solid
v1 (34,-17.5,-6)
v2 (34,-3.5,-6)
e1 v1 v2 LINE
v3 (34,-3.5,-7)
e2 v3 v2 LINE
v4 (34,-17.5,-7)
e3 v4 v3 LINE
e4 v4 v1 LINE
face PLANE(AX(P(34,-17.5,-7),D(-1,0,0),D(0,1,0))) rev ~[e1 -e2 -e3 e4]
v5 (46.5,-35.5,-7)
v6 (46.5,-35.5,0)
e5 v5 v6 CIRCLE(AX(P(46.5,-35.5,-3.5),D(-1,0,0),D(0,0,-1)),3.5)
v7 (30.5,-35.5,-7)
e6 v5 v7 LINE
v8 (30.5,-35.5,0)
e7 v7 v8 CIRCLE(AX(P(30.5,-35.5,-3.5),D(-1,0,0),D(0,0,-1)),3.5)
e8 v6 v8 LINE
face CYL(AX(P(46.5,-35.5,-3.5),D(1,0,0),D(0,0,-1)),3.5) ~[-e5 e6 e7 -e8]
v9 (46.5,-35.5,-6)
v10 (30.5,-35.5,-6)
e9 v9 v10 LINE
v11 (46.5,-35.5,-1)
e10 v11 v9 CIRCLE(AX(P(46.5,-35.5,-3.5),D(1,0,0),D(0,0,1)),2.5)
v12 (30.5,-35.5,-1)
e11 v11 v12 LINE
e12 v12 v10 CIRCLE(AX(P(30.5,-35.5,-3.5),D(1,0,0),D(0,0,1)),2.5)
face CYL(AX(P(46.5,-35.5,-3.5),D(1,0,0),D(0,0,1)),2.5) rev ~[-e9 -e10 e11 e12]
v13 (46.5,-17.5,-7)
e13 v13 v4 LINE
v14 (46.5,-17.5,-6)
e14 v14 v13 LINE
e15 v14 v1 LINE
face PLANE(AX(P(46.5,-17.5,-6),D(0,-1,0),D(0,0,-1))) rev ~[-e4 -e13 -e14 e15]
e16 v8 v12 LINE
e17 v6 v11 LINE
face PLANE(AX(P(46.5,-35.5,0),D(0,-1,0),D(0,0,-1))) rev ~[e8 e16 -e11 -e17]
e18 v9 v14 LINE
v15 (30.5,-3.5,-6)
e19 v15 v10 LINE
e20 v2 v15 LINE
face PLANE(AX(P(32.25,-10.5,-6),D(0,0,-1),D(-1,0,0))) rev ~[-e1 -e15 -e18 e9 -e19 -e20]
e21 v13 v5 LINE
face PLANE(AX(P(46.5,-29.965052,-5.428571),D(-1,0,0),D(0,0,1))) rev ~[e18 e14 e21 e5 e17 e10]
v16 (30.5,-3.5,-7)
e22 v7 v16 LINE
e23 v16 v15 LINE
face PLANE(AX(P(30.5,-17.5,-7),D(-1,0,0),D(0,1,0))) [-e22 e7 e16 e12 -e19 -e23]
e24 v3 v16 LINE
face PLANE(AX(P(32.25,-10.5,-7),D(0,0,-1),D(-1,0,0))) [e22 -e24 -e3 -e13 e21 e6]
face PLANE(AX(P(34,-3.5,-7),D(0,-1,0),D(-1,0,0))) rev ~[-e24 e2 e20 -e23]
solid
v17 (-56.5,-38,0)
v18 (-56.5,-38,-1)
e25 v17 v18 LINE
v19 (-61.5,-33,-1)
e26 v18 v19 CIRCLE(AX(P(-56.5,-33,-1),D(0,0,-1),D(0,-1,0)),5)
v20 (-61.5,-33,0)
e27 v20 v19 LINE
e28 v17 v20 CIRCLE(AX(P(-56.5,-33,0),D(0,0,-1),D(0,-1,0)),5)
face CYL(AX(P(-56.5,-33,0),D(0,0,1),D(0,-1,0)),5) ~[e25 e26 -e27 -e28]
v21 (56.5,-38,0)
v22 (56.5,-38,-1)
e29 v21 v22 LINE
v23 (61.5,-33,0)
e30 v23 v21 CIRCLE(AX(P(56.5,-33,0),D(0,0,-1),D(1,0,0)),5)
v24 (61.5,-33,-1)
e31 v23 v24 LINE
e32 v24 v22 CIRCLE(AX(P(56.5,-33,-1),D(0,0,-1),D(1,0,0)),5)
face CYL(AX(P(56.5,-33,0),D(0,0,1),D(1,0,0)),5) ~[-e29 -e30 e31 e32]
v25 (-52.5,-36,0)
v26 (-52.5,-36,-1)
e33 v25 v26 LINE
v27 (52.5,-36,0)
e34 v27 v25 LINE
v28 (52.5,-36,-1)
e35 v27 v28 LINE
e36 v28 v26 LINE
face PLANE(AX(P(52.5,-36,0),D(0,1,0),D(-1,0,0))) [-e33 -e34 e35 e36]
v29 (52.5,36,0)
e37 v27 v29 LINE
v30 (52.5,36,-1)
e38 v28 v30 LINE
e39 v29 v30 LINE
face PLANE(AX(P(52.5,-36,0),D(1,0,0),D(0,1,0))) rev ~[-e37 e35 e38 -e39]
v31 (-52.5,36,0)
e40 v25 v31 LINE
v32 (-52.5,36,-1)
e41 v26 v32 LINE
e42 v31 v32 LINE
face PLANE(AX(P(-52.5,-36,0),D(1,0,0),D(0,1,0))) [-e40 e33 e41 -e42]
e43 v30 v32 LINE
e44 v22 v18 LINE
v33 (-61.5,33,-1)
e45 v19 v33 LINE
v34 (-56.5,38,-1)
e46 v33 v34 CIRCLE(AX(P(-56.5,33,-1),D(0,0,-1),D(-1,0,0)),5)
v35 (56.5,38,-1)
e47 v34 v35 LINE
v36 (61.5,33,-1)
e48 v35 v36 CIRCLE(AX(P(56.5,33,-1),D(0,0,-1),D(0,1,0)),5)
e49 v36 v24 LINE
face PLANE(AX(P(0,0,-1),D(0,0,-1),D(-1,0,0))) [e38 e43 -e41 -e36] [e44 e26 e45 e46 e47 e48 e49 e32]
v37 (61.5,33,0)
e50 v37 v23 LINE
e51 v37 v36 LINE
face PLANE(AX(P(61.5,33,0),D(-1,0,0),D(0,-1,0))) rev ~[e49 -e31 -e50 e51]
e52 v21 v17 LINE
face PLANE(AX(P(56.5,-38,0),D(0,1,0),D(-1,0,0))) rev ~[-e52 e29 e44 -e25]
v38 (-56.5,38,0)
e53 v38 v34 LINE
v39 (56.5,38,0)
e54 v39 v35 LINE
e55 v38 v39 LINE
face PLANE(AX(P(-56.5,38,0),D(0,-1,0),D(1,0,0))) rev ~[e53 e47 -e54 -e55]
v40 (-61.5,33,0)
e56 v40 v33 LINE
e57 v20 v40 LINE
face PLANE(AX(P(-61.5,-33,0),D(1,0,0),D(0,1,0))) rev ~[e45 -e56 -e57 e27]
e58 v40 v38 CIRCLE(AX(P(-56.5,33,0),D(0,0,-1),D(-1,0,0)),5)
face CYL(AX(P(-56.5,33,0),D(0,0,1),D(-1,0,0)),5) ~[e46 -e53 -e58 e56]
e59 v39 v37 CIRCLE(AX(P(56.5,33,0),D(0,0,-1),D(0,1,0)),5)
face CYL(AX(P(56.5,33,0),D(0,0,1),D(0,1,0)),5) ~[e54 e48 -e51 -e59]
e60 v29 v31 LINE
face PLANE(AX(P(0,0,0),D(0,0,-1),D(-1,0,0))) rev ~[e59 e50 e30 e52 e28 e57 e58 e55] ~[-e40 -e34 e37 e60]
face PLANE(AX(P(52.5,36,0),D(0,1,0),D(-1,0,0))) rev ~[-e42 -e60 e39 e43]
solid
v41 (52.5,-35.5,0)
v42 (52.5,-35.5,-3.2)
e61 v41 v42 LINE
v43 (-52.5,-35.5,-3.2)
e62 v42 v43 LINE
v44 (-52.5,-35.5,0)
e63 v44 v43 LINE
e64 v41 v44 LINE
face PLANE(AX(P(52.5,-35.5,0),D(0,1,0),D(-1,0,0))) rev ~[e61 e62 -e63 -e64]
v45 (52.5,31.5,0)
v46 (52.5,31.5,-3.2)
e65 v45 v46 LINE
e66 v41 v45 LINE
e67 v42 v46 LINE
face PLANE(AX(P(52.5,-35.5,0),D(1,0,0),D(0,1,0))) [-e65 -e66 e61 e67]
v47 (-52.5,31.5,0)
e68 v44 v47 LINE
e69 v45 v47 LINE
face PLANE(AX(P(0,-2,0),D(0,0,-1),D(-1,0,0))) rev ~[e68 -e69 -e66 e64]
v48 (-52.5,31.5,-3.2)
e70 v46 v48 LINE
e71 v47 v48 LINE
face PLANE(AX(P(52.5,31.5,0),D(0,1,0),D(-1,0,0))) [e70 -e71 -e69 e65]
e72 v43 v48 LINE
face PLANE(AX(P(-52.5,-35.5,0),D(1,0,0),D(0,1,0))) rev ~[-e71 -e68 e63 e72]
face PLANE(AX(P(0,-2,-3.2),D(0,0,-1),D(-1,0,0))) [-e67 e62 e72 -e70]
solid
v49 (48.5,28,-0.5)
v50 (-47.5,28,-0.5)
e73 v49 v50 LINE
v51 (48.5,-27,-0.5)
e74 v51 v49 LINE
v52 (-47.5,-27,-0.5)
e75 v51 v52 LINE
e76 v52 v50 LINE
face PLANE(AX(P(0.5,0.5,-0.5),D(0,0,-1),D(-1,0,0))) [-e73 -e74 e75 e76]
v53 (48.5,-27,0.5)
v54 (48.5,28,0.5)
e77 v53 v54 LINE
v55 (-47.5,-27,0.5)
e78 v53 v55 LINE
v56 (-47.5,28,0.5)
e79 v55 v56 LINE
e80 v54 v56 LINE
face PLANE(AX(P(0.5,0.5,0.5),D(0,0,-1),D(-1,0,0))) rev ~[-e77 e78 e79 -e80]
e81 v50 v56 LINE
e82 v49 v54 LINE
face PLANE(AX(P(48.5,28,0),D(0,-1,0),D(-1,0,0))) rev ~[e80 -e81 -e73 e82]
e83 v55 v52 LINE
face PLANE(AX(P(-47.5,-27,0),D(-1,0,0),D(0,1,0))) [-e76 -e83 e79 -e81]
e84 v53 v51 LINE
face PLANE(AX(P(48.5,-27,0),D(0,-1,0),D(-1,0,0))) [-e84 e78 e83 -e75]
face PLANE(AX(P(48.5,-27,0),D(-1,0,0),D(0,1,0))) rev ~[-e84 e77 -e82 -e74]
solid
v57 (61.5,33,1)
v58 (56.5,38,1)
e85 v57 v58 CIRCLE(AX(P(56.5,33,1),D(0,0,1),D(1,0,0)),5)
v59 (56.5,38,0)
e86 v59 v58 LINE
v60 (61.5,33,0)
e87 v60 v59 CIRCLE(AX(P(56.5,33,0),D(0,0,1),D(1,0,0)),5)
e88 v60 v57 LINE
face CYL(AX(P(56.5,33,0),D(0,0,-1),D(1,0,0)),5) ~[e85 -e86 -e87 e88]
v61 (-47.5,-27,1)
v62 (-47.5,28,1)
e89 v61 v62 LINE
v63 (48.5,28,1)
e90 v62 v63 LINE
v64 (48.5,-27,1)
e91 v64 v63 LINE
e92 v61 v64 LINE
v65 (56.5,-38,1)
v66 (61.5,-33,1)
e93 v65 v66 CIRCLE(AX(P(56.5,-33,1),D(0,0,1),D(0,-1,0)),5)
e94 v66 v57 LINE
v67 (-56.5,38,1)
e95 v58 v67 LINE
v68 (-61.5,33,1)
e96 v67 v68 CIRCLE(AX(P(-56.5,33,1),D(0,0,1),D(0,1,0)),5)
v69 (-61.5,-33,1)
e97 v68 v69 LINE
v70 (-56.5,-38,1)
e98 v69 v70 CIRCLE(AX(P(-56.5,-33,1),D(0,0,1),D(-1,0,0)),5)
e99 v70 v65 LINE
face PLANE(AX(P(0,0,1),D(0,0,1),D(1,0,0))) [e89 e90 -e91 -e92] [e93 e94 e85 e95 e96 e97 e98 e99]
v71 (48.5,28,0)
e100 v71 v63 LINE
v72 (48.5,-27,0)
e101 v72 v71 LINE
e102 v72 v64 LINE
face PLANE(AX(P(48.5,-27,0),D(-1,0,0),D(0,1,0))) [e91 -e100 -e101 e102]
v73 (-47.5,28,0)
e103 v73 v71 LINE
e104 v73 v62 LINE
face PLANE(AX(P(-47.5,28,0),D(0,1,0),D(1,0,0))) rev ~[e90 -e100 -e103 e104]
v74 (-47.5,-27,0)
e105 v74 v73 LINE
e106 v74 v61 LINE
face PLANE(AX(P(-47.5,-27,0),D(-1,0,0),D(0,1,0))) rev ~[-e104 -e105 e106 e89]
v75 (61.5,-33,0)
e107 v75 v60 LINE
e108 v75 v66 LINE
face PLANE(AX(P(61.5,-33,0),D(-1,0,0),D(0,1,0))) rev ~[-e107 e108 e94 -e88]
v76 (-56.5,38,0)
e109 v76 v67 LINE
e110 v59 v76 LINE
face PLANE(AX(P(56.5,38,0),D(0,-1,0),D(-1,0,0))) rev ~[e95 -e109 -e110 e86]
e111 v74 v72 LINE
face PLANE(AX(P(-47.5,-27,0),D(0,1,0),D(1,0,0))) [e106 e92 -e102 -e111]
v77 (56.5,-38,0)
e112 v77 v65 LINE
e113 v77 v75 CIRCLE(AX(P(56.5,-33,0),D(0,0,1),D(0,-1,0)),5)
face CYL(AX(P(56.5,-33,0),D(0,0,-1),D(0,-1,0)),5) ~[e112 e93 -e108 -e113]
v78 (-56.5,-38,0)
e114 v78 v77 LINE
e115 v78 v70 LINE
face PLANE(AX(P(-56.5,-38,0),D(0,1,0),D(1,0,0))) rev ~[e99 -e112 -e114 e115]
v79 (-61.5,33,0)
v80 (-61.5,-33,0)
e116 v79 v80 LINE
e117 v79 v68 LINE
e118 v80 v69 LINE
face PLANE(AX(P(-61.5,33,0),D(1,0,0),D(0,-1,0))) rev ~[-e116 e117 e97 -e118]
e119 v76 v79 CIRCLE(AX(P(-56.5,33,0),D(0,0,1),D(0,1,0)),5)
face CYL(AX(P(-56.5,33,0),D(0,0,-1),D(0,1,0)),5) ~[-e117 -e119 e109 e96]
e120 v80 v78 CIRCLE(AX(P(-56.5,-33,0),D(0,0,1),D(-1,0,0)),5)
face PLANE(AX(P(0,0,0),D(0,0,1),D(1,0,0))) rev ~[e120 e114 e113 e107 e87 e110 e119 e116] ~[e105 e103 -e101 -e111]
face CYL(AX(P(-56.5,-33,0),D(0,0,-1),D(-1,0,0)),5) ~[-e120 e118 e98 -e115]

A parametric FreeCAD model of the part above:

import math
import FreeCAD as App
import Part
import Sketcher


def add_polygon(sketch, points):
    """Adds a closed chain of lines whose ends are joined by coincident constraints."""
    first, n = sketch.GeometryCount, len(points)
    for a, b in zip(points, points[1:] + points[:1]):
        sketch.addGeometry(Part.LineSegment(App.Vector(*a, 0), App.Vector(*b, 0)), False)
    for i in range(n):
        sketch.addConstraint(Sketcher.Constraint("Coincident", first + i, 2, first + (i + 1) % n, 1))

doc = App.newDocument("Part")
body = doc.addObject("PartDesign::Body", "Body")

# Sketch on XY plane
sketch1 = body.newObject("Sketcher::SketchObject", "Sketch")
sketch1.AttachmentSupport = (doc.getObject("XY_Plane"), [""])
sketch1.MapMode = "FlatFace"
sketch1.addGeometry(Part.LineSegment(App.Vector(-56, -38, 0), App.Vector(56, -38, 0)), False)  # 0
sketch1.addGeometry(Part.ArcOfCircle(Part.Circle(App.Vector(56, -33, 0), App.Vector(0, 0, 1), 5), math.radians(-90), math.radians(0)), False)  # 1
sketch1.addGeometry(Part.LineSegment(App.Vector(62, -33, 0), App.Vector(62, 33, 0)), False)  # 2
sketch1.addGeometry(Part.ArcOfCircle(Part.Circle(App.Vector(56, 33, 0), App.Vector(0, 0, 1), 5), math.radians(0), math.radians(90)), False)  # 3
sketch1.addGeometry(Part.LineSegment(App.Vector(56, 38, 0), App.Vector(-56, 38, 0)), False)  # 4
sketch1.addGeometry(Part.ArcOfCircle(Part.Circle(App.Vector(-56, 33, 0), App.Vector(0, 0, 1), 5), math.radians(90), math.radians(180)), False)  # 5
sketch1.addGeometry(Part.LineSegment(App.Vector(-62, 33, 0), App.Vector(-62, -33, 0)), False)  # 6
sketch1.addGeometry(Part.ArcOfCircle(Part.Circle(App.Vector(-56, -33, 0), App.Vector(0, 0, 1), 5), math.radians(180), math.radians(270)), False)  # 7
add_polygon(sketch1, [(48, -27), (-48, -27), (-48, 28), (48, 28)])  # lines 8-11
sketch1.addConstraint([
    Sketcher.Constraint("Tangent", 0, 2, 1, 1),
    Sketcher.Constraint("Tangent", 1, 2, 2, 1),
    Sketcher.Constraint("Tangent", 2, 2, 3, 1),
    Sketcher.Constraint("Tangent", 3, 2, 4, 1),
    Sketcher.Constraint("Tangent", 4, 2, 5, 1),
    Sketcher.Constraint("Tangent", 5, 2, 6, 1),
    Sketcher.Constraint("Tangent", 6, 2, 7, 1),
    Sketcher.Constraint("Tangent", 7, 2, 0, 1),
    Sketcher.Constraint("Horizontal", 0),
    Sketcher.Constraint("Vertical", 2),
    Sketcher.Constraint("Horizontal", 4),
    Sketcher.Constraint("Vertical", 6),
    Sketcher.Constraint("Horizontal", 8),
    Sketcher.Constraint("Vertical", 9),
    Sketcher.Constraint("Horizontal", 10),
    Sketcher.Constraint("Vertical", 11),
    Sketcher.Constraint("Equal", 1, 3),
    Sketcher.Constraint("Equal", 3, 5),
    Sketcher.Constraint("Equal", 5, 7),
    Sketcher.Constraint("Symmetric", 1, 3, 5, 3, -1, 1),
    Sketcher.Constraint("Radius", 1, 5.0),
    Sketcher.Constraint("DistanceX", 0, 1, 0, 2, 113.0),
    Sketcher.Constraint("DistanceX", 8, 2, 8, 1, 96.0),
    Sketcher.Constraint("DistanceY", 2, 1, 2, 2, 66.0),
    Sketcher.Constraint("DistanceY", 9, 1, 9, 2, 55.0),
    Sketcher.Constraint("DistanceY", 8, 2, -1, 1, 27.0),
    Sketcher.Constraint("DistanceX", 7, 3, 8, 2, 9.0),
])
pad1 = body.newObject("PartDesign::Pad", "Pad")
pad1.Profile = sketch1
pad1.Length = 1
body2 = doc.addObject("PartDesign::Body", "Body001")

# Sketch on XY plane
sketch2 = body2.newObject("Sketcher::SketchObject", "Sketch001")
sketch2.AttachmentSupport = (doc.getObject("XY_Plane001"), [""])
sketch2.MapMode = "FlatFace"
add_polygon(sketch2, [(48, 28), (48, -27), (-48, -27), (-48, 28)])  # lines 0-3
sketch2.addConstraint([
    Sketcher.Constraint("Vertical", 0),
    Sketcher.Constraint("Horizontal", 1),
    Sketcher.Constraint("Vertical", 2),
    Sketcher.Constraint("Horizontal", 3),
    Sketcher.Constraint("DistanceX", 1, 2, 1, 1, 96.0),
    Sketcher.Constraint("DistanceY", 0, 2, 0, 1, 55.0),
    Sketcher.Constraint("DistanceY", 0, 2, -1, 1, 27.0),
    Sketcher.Constraint("DistanceX", -1, 1, 0, 2, 48.5),
])
pad2 = body2.newObject("PartDesign::Pad", "Pad001")
pad2.Profile = sketch2
pad2.Length = 1
pad2.Midplane = True
body3 = doc.addObject("PartDesign::Body", "Body002")

# Sketch on XY plane
sketch3 = body3.newObject("Sketcher::SketchObject", "Sketch002")
sketch3.AttachmentSupport = (doc.getObject("XY_Plane002"), [""])
sketch3.MapMode = "FlatFace"
sketch3.addGeometry(Part.LineSegment(App.Vector(-62, -33, 0), App.Vector(-62, 33, 0)), False)  # 0
sketch3.addGeometry(Part.ArcOfCircle(Part.Circle(App.Vector(-56, 33, 0), App.Vector(0, 0, 1), 5), math.radians(90), math.radians(180)), False)  # 1
sketch3.addGeometry(Part.LineSegment(App.Vector(-56, 38, 0), App.Vector(56, 38, 0)), False)  # 2
sketch3.addGeometry(Part.ArcOfCircle(Part.Circle(App.Vector(56, 33, 0), App.Vector(0, 0, 1), 5), math.radians(0), math.radians(90)), False)  # 3
sketch3.addGeometry(Part.LineSegment(App.Vector(62, 33, 0), App.Vector(62, -33, 0)), False)  # 4
sketch3.addGeometry(Part.ArcOfCircle(Part.Circle(App.Vector(56, -33, 0), App.Vector(0, 0, 1), 5), math.radians(-90), math.radians(0)), False)  # 5
sketch3.addGeometry(Part.LineSegment(App.Vector(56, -38, 0), App.Vector(-56, -38, 0)), False)  # 6
sketch3.addGeometry(Part.ArcOfCircle(Part.Circle(App.Vector(-56, -33, 0), App.Vector(0, 0, 1), 5), math.radians(180), math.radians(270)), False)  # 7
add_polygon(sketch3, [(-52, -36), (52, -36), (52, 36), (-52, 36)])  # lines 8-11
sketch3.addConstraint([
    Sketcher.Constraint("Tangent", 0, 2, 1, 2),
    Sketcher.Constraint("Tangent", 1, 1, 2, 1),
    Sketcher.Constraint("Tangent", 2, 2, 3, 2),
    Sketcher.Constraint("Tangent", 3, 1, 4, 1),
    Sketcher.Constraint("Tangent", 4, 2, 5, 2),
    Sketcher.Constraint("Tangent", 5, 1, 6, 1),
    Sketcher.Constraint("Tangent", 6, 2, 7, 2),
    Sketcher.Constraint("Tangent", 7, 1, 0, 1),
    Sketcher.Constraint("Vertical", 0),
    Sketcher.Constraint("Horizontal", 2),
    Sketcher.Constraint("Vertical", 4),
    Sketcher.Constraint("Horizontal", 6),
    Sketcher.Constraint("Horizontal", 8),
    Sketcher.Constraint("Vertical", 9),
    Sketcher.Constraint("Horizontal", 10),
    Sketcher.Constraint("Vertical", 11),
    Sketcher.Constraint("Equal", 1, 3),
    Sketcher.Constraint("Equal", 3, 5),
    Sketcher.Constraint("Equal", 5, 7),
    Sketcher.Constraint("Symmetric", 1, 3, 5, 3, -1, 1),
    Sketcher.Constraint("Symmetric", 8, 2, 10, 2, -1, 1),
    Sketcher.Constraint("Radius", 1, 5.0),
    Sketcher.Constraint("DistanceX", 2, 1, 2, 2, 113.0),
    Sketcher.Constraint("DistanceX", 8, 1, 8, 2, 105.0),
    Sketcher.Constraint("DistanceY", 0, 1, 0, 2, 66.0),
    Sketcher.Constraint("DistanceY", 9, 1, 9, 2, 72.0),
])
pad3 = body3.newObject("PartDesign::Pad", "Pad002")
pad3.Profile = sketch3
pad3.Length = 1
pad3.Reversed = True
body4 = doc.addObject("PartDesign::Body", "Body003")

# Sketch on YZ plane
sketch4 = body4.newObject("Sketcher::SketchObject", "Sketch003")
sketch4.AttachmentSupport = (doc.getObject("YZ_Plane003"), [""])
sketch4.MapMode = "FlatFace"
sketch4.AttachmentOffset = App.Placement(App.Vector(0, 0, 46.5), App.Rotation())
sketch4.addGeometry([
    Part.ArcOfCircle(Part.Circle(App.Vector(-35.5, -3.5, 0), App.Vector(0, 0, 1), 2.5), math.radians(90), math.radians(270)),  # 0
    Part.LineSegment(App.Vector(-35.5, -1, 0), App.Vector(-35.5, 0, 0)),  # 1
    Part.ArcOfCircle(Part.Circle(App.Vector(-35.5, -3.5, 0), App.Vector(0, 0, 1), 3.5), math.radians(90), math.radians(270)),  # 2
    Part.LineSegment(App.Vector(-35.5, -7, 0), App.Vector(-17.5, -7, 0)),  # 3
    Part.LineSegment(App.Vector(-17.5, -7, 0), App.Vector(-17.5, -6, 0)),  # 4
    Part.LineSegment(App.Vector(-17.5, -6, 0), App.Vector(-35.5, -6, 0)),  # 5
], False)
sketch4.addConstraint([
    Sketcher.Constraint("Coincident", 0, 1, 1, 1),
    Sketcher.Constraint("Coincident", 1, 2, 2, 1),
    Sketcher.Constraint("Tangent", 2, 2, 3, 1),
    Sketcher.Constraint("Coincident", 3, 2, 4, 1),
    Sketcher.Constraint("Coincident", 4, 2, 5, 1),
    Sketcher.Constraint("Tangent", 5, 2, 0, 2),
    Sketcher.Constraint("Vertical", 1),
    Sketcher.Constraint("Horizontal", 3),
    Sketcher.Constraint("Vertical", 4),
    Sketcher.Constraint("Horizontal", 5),
    Sketcher.Constraint("Coincident", 2, 3, 0, 3),
    Sketcher.Constraint("PointOnObject", 1, 2, -1),
    Sketcher.Constraint("Vertical", 2, 3, 0, 1),
    Sketcher.Constraint("Radius", 0, 2.5),
    Sketcher.Constraint("Radius", 2, 3.5),
    Sketcher.Constraint("DistanceX", 3, 1, 3, 2, 18.0),
    Sketcher.Constraint("DistanceX", 0, 3, -1, 1, 35.5),
])
pad4 = body4.newObject("PartDesign::Pad", "Pad003")
pad4.Profile = sketch4
pad4.Length = 16
pad4.Reversed = True

# Sketch on XY plane
sketch5 = body4.newObject("Sketcher::SketchObject", "Sketch004")
sketch5.AttachmentSupport = (doc.getObject("XY_Plane003"), [""])
sketch5.MapMode = "FlatFace"
sketch5.AttachmentOffset = App.Placement(App.Vector(0, 0, -7), App.Rotation())
add_polygon(sketch5, [(34, -3.5), (34, -17.5), (30.5, -17.5), (30.5, -3.5)])  # lines 0-3
sketch5.addConstraint([
    Sketcher.Constraint("Vertical", 0),
    Sketcher.Constraint("Horizontal", 1),
    Sketcher.Constraint("Vertical", 2),
    Sketcher.Constraint("Horizontal", 3),
    Sketcher.Constraint("DistanceY", 0, 2, 0, 1, 14.0),
    Sketcher.Constraint("DistanceX", 1, 2, 1, 1, 3.5),
    Sketcher.Constraint("DistanceX", -1, 1, 0, 2, 34.0),
    Sketcher.Constraint("DistanceY", 0, 2, -1, 1, 17.5),
])
pad5 = body4.newObject("PartDesign::Pad", "Pad004")
pad5.Profile = sketch5
pad5.Length = 1
body5 = doc.addObject("PartDesign::Body", "Body004")

# Sketch on XY plane
sketch6 = body5.newObject("Sketcher::SketchObject", "Sketch005")
sketch6.AttachmentSupport = (doc.getObject("XY_Plane004"), [""])
sketch6.MapMode = "FlatFace"
add_polygon(sketch6, [(52, 32), (52, -36), (-52, -36), (-52, 32)])  # lines 0-3
sketch6.addConstraint([
    Sketcher.Constraint("Vertical", 0),
    Sketcher.Constraint("Horizontal", 1),
    Sketcher.Constraint("Vertical", 2),
    Sketcher.Constraint("Horizontal", 3),
    Sketcher.Constraint("DistanceX", 1, 2, 1, 1, 105.0),
    Sketcher.Constraint("DistanceY", 0, 2, 0, 1, 67.0),
    Sketcher.Constraint("DistanceX", -1, 1, 0, 2, 52.5),
    Sketcher.Constraint("DistanceY", 0, 2, -1, 1, 35.5),
])
pad6 = body5.newObject("PartDesign::Pad", "Pad005")
pad6.Profile = sketch6
pad6.Length = 3.2
pad6.Reversed = True

doc.recompute()
